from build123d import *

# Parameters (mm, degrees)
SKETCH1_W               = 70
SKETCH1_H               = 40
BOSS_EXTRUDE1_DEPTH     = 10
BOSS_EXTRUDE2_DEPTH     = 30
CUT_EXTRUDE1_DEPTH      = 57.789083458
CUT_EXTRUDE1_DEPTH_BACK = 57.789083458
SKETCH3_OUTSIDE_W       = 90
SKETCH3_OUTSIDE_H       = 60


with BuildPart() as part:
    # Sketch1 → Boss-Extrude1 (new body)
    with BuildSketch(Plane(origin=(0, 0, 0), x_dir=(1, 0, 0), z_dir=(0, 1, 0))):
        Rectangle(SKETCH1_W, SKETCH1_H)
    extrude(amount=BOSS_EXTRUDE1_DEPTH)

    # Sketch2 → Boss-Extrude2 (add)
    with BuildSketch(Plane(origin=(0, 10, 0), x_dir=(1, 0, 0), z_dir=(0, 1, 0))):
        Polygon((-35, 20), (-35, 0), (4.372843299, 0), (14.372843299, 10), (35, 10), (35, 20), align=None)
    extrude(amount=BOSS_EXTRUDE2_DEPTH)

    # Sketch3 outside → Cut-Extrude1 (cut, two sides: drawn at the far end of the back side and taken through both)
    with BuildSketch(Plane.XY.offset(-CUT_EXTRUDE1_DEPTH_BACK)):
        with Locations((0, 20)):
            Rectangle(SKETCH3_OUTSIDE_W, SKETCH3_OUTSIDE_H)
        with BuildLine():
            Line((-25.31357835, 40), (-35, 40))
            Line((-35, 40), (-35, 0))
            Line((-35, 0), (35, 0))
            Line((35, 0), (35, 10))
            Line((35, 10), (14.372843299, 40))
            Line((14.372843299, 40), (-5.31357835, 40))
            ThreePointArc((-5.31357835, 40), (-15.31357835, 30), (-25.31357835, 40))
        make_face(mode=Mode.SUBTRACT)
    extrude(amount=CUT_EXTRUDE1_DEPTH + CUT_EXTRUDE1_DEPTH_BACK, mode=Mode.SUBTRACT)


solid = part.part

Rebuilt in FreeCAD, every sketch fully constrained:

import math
import FreeCAD as App
import Part
import Sketcher
Q = App.Units.Quantity

doc = App.newDocument("Part")
body = doc.addObject("PartDesign::Body", "Body")

# Sketch on XZ plane
sketch1 = doc.addObject("Sketcher::SketchObject", "Sketch")
body.addObject(sketch1)
sketch1.AttachmentSupport = (doc.XZ_Plane, [""])
sketch1.MapMode = "FlatFace"
sketch1.addGeometry([
    Part.LineSegment(App.Vector(-35, -20, 0), App.Vector(-35, 20, 0)),
    Part.LineSegment(App.Vector(-35, 20, 0), App.Vector(35, 20, 0)),
    Part.LineSegment(App.Vector(35, 20, 0), App.Vector(35, -20, 0)),
    Part.LineSegment(App.Vector(35, -20, 0), App.Vector(-35, -20, 0)),
], False)
sketch1.addConstraint([
    Sketcher.Constraint("Coincident", 0, 2, 1, 1),
    Sketcher.Constraint("Coincident", 1, 2, 2, 1),
    Sketcher.Constraint("Coincident", 2, 2, 3, 1),
    Sketcher.Constraint("Coincident", 3, 2, 0, 1),
    Sketcher.Constraint("Vertical", 0),
    Sketcher.Constraint("Horizontal", 1),
    Sketcher.Constraint("Vertical", 2),
    Sketcher.Constraint("Horizontal", 3),
    Sketcher.Constraint("Symmetric", 0, 2, 2, 2, -1, 1),
    Sketcher.Constraint("DistanceX", 1, 1, 1, 2, Q("70 mm")),
    Sketcher.Constraint("DistanceY", 0, 1, 0, 2, Q("40 mm")),
])
pad1 = doc.addObject("PartDesign::Pad", "Pad")
body.addObject(pad1)
pad1.Profile = sketch1
pad1.Length = 10
pad1.Reversed = True

# Sketch on XZ plane
sketch2 = doc.addObject("Sketcher::SketchObject", "Sketch001")
body.addObject(sketch2)
sketch2.AttachmentSupport = (doc.XZ_Plane, [""])
sketch2.MapMode = "FlatFace"
sketch2.AttachmentOffset = App.Placement(App.Vector(0, 0, -10), App.Rotation())
sketch2.addGeometry([
    Part.LineSegment(App.Vector(-35, -20, 0), App.Vector(-35, 0, 0)),  # 0
    Part.LineSegment(App.Vector(-35, 0, 0), App.Vector(4.372843, 0, 0)),  # 1
    Part.LineSegment(App.Vector(4.372843, 0, 0), App.Vector(14.372843, -10, 0)),  # 2
    Part.LineSegment(App.Vector(14.372843, -10, 0), App.Vector(35, -10, 0)),  # 3
    Part.LineSegment(App.Vector(35, -10, 0), App.Vector(35, -20, 0)),  # 4
    Part.LineSegment(App.Vector(35, -20, 0), App.Vector(-35, -20, 0)),  # 5
], False)
sketch2.addConstraint([
    Sketcher.Constraint("Coincident", 0, 2, 1, 1),
    Sketcher.Constraint("Coincident", 1, 2, 2, 1),
    Sketcher.Constraint("Coincident", 2, 2, 3, 1),
    Sketcher.Constraint("Coincident", 3, 2, 4, 1),
    Sketcher.Constraint("Coincident", 4, 2, 5, 1),
    Sketcher.Constraint("Coincident", 5, 2, 0, 1),
    Sketcher.Constraint("Vertical", 0),
    Sketcher.Constraint("Horizontal", 1),
    Sketcher.Constraint("Horizontal", 3),
    Sketcher.Constraint("Vertical", 4),
    Sketcher.Constraint("Horizontal", 5),
    Sketcher.Constraint("PointOnObject", 0, 2, -1),
    Sketcher.Constraint("DistanceX", 5, 2, 5, 1, Q("70 mm")),
    Sketcher.Constraint("DistanceY", 0, 1, 0, 2, Q("20 mm")),
    Sketcher.Constraint("DistanceY", 4, 2, 4, 1, Q("10 mm")),
    Sketcher.Constraint("Angle", 2, Q("-45 deg")),
    Sketcher.Constraint("DistanceX", 0, 2, -1, 1, Q("35 mm")),
    Sketcher.Constraint("DistanceX", 1, 1, 1, 2, Q("39.372843 mm")),
])
pad2 = doc.addObject("PartDesign::Pad", "Pad001")
body.addObject(pad2)
pad2.Profile = sketch2
pad2.Length = 30
pad2.Reversed = True

# Sketch on XY plane
sketch3 = doc.addObject("Sketcher::SketchObject", "Sketch002")
body.addObject(sketch3)
sketch3.AttachmentSupport = (doc.XY_Plane, [""])
sketch3.MapMode = "FlatFace"
sketch3.addGeometry([
    Part.LineSegment(App.Vector(-45, 50, 0), App.Vector(-45, -10, 0)),  # 0
    Part.LineSegment(App.Vector(-45, -10, 0), App.Vector(45, -10, 0)),  # 1
    Part.LineSegment(App.Vector(45, -10, 0), App.Vector(45, 50, 0)),  # 2
    Part.LineSegment(App.Vector(45, 50, 0), App.Vector(-45, 50, 0)),  # 3
    Part.LineSegment(App.Vector(-35, 40, 0), App.Vector(-25.313578, 40, 0)),  # 4
    Part.ArcOfCircle(Part.Circle(App.Vector(-15.313578, 40, 0), App.Vector(0, 0, 1), 10), math.radians(180), math.radians(360)),  # 5
    Part.LineSegment(App.Vector(-5.313578, 40, 0), App.Vector(14.372843, 40, 0)),  # 6
    Part.LineSegment(App.Vector(14.372843, 40, 0), App.Vector(35, 10, 0)),  # 7
    Part.LineSegment(App.Vector(35, 10, 0), App.Vector(35, 0, 0)),  # 8
    Part.LineSegment(App.Vector(35, 0, 0), App.Vector(-35, 0, 0)),  # 9
    Part.LineSegment(App.Vector(-35, 0, 0), App.Vector(-35, 40, 0)),  # 10
], False)
sketch3.addConstraint([
    Sketcher.Constraint("Coincident", 0, 2, 1, 1),
    Sketcher.Constraint("Coincident", 1, 2, 2, 1),
    Sketcher.Constraint("Coincident", 2, 2, 3, 1),
    Sketcher.Constraint("Coincident", 3, 2, 0, 1),
    Sketcher.Constraint("Coincident", 4, 2, 5, 1),
    Sketcher.Constraint("Coincident", 5, 2, 6, 1),
    Sketcher.Constraint("Coincident", 6, 2, 7, 1),
    Sketcher.Constraint("Coincident", 7, 2, 8, 1),
    Sketcher.Constraint("Coincident", 8, 2, 9, 1),
    Sketcher.Constraint("Coincident", 9, 2, 10, 1),
    Sketcher.Constraint("Coincident", 10, 2, 4, 1),
    Sketcher.Constraint("Vertical", 0),
    Sketcher.Constraint("Horizontal", 1),
    Sketcher.Constraint("Vertical", 2),
    Sketcher.Constraint("Horizontal", 3),
    Sketcher.Constraint("Horizontal", 4),
    Sketcher.Constraint("Horizontal", 6),
    Sketcher.Constraint("Vertical", 8),
    Sketcher.Constraint("Horizontal", 9),
    Sketcher.Constraint("Vertical", 10),
    Sketcher.Constraint("Symmetric", 8, 2, 9, 2, -1, 1),
    Sketcher.Constraint("Horizontal", 5, 3, 4, 2),
    Sketcher.Constraint("Horizontal", 4, 2, 5, 2),
    Sketcher.Constraint("Radius", 5, Q("10 mm")),
    Sketcher.Constraint("DistanceX", 1, 1, 1, 2, Q("90 mm")),
    Sketcher.Constraint("DistanceX", 9, 2, 9, 1, Q("70 mm")),
    Sketcher.Constraint("DistanceY", 0, 2, 0, 1, Q("60 mm")),
    Sketcher.Constraint("DistanceY", 8, 2, 8, 1, Q("10 mm")),
    Sketcher.Constraint("DistanceY", 10, 1, 10, 2, Q("40 mm")),
    Sketcher.Constraint("DistanceX", 0, 2, -1, 1, Q("45 mm")),
    Sketcher.Constraint("DistanceY", 0, 2, -1, 1, Q("10 mm")),
    Sketcher.Constraint("DistanceX", 4, 1, 4, 2, Q("9.686422 mm")),
    Sketcher.Constraint("DistanceX", 6, 1, 6, 2, Q("19.686422 mm")),
])
pocket1 = doc.addObject("PartDesign::Pocket", "Pocket")
body.addObject(pocket1)
pocket1.Profile = sketch3
pocket1.Type = "ThroughAll"
pocket1.Midplane = True

doc.recompute()
